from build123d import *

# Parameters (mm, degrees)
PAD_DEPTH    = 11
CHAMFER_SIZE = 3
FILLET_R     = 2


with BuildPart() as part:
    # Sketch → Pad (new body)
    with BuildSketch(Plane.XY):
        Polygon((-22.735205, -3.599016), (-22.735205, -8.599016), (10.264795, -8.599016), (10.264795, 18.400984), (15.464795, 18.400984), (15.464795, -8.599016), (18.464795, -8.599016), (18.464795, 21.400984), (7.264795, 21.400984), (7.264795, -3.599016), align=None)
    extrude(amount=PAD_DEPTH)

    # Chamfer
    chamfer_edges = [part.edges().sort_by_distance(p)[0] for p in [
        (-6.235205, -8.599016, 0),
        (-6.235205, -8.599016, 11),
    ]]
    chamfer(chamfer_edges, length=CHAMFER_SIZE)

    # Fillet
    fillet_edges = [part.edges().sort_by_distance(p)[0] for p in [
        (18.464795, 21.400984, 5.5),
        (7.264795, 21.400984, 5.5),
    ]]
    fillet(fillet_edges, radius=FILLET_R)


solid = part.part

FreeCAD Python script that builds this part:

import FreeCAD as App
import Part
import Sketcher
Q = App.Units.Quantity


def edges_at(feature, points):
    """Names of the edges that pass closest to the given points."""
    edges = feature.Shape.Edges
    near = lambda p: min(range(len(edges)), key=lambda i: edges[i].distToShape(Part.Vertex(*p))[0])
    return sorted({f"Edge{near(p) + 1}" for p in points})


def add_polygon(sketch, points):
    """Adds a closed chain of lines whose ends are joined by coincident constraints."""
    first, n = sketch.GeometryCount, len(points)
    for a, b in zip(points, points[1:] + points[:1]):
        sketch.addGeometry(Part.LineSegment(App.Vector(*a, 0), App.Vector(*b, 0)), False)
    for i in range(n):
        sketch.addConstraint(Sketcher.Constraint("Coincident", first + i, 2, first + (i + 1) % n, 1))

doc = App.newDocument("Part")
body = doc.addObject("PartDesign::Body", "Body")

# Sketch on XY plane
sketch1 = body.newObject("Sketcher::SketchObject", "Sketch")
sketch1.AttachmentSupport = (doc.getObject("XY_Plane"), [""])
sketch1.MapMode = "FlatFace"
add_polygon(sketch1, [(-22.7, -3.6), (-22.7, -8.6), (10.3, -8.6), (10.3, 18.4), (15.5, 18.4), (15.5, -8.6), (18.5, -8.6), (18.5, 21.4), (7.3, 21.4), (7.3, -3.6)])  # lines 0-9
sketch1.addConstraint(Sketcher.Constraint("Vertical", 0))
sketch1.addConstraint(Sketcher.Constraint("Horizontal", 1))
sketch1.addConstraint(Sketcher.Constraint("Vertical", 2))
sketch1.addConstraint(Sketcher.Constraint("Horizontal", 3))
sketch1.addConstraint(Sketcher.Constraint("Vertical", 4))
sketch1.addConstraint(Sketcher.Constraint("Horizontal", 5))
sketch1.addConstraint(Sketcher.Constraint("Vertical", 6))
sketch1.addConstraint(Sketcher.Constraint("Horizontal", 7))
sketch1.addConstraint(Sketcher.Constraint("Vertical", 8))
sketch1.addConstraint(Sketcher.Constraint("Horizontal", 9))
sketch1.addConstraint(Sketcher.Constraint("Horizontal", 1, 2, 4, 2))
sketch1.addConstraint(Sketcher.Constraint("Equal", 9, 6))
sketch1.addConstraint(Sketcher.Constraint("DistanceX", 1, 1, 1, 2, Q("33 mm")))
sketch1.addConstraint(Sketcher.Constraint("DistanceX", 5, 1, 5, 2, Q("3 mm")))
sketch1.addConstraint(Sketcher.Constraint("DistanceX", 9, 2, 9, 1, Q("30 mm")))
sketch1.addConstraint(Sketcher.Constraint("DistanceY", 0, 2, 0, 1, Q("5 mm")))
sketch1.addConstraint(Sketcher.Constraint("DistanceY", 2, 1, 2, 2, Q("27 mm")))
sketch1.addConstraint(Sketcher.Constraint("DistanceX", 3, 1, 3, 2, Q("5.2 mm")))
sketch1.addConstraint(Sketcher.Constraint("DistanceX", 0, 2, -1, 1, Q("22.735205 mm")))
sketch1.addConstraint(Sketcher.Constraint("DistanceY", 0, 2, -1, 1, Q("8.599016 mm")))
pad1 = body.newObject("PartDesign::Pad", "Pad")
pad1.Profile = sketch1
pad1.Length = 11
doc.recompute()

chamfer = body.newObject("PartDesign::Chamfer", "Chamfer")
chamfer.Base = (pad1, edges_at(pad1, [(-6.235, -8.599, 0), (-6.235, -8.599, 11)]))
chamfer.Size = 3
doc.recompute()

fillet = body.newObject("PartDesign::Fillet", "Fillet")
fillet.Base = (chamfer, edges_at(chamfer, [(18.465, 21.401, 5.5), (7.265, 21.401, 5.5)]))
fillet.Radius = 2

doc.recompute()
